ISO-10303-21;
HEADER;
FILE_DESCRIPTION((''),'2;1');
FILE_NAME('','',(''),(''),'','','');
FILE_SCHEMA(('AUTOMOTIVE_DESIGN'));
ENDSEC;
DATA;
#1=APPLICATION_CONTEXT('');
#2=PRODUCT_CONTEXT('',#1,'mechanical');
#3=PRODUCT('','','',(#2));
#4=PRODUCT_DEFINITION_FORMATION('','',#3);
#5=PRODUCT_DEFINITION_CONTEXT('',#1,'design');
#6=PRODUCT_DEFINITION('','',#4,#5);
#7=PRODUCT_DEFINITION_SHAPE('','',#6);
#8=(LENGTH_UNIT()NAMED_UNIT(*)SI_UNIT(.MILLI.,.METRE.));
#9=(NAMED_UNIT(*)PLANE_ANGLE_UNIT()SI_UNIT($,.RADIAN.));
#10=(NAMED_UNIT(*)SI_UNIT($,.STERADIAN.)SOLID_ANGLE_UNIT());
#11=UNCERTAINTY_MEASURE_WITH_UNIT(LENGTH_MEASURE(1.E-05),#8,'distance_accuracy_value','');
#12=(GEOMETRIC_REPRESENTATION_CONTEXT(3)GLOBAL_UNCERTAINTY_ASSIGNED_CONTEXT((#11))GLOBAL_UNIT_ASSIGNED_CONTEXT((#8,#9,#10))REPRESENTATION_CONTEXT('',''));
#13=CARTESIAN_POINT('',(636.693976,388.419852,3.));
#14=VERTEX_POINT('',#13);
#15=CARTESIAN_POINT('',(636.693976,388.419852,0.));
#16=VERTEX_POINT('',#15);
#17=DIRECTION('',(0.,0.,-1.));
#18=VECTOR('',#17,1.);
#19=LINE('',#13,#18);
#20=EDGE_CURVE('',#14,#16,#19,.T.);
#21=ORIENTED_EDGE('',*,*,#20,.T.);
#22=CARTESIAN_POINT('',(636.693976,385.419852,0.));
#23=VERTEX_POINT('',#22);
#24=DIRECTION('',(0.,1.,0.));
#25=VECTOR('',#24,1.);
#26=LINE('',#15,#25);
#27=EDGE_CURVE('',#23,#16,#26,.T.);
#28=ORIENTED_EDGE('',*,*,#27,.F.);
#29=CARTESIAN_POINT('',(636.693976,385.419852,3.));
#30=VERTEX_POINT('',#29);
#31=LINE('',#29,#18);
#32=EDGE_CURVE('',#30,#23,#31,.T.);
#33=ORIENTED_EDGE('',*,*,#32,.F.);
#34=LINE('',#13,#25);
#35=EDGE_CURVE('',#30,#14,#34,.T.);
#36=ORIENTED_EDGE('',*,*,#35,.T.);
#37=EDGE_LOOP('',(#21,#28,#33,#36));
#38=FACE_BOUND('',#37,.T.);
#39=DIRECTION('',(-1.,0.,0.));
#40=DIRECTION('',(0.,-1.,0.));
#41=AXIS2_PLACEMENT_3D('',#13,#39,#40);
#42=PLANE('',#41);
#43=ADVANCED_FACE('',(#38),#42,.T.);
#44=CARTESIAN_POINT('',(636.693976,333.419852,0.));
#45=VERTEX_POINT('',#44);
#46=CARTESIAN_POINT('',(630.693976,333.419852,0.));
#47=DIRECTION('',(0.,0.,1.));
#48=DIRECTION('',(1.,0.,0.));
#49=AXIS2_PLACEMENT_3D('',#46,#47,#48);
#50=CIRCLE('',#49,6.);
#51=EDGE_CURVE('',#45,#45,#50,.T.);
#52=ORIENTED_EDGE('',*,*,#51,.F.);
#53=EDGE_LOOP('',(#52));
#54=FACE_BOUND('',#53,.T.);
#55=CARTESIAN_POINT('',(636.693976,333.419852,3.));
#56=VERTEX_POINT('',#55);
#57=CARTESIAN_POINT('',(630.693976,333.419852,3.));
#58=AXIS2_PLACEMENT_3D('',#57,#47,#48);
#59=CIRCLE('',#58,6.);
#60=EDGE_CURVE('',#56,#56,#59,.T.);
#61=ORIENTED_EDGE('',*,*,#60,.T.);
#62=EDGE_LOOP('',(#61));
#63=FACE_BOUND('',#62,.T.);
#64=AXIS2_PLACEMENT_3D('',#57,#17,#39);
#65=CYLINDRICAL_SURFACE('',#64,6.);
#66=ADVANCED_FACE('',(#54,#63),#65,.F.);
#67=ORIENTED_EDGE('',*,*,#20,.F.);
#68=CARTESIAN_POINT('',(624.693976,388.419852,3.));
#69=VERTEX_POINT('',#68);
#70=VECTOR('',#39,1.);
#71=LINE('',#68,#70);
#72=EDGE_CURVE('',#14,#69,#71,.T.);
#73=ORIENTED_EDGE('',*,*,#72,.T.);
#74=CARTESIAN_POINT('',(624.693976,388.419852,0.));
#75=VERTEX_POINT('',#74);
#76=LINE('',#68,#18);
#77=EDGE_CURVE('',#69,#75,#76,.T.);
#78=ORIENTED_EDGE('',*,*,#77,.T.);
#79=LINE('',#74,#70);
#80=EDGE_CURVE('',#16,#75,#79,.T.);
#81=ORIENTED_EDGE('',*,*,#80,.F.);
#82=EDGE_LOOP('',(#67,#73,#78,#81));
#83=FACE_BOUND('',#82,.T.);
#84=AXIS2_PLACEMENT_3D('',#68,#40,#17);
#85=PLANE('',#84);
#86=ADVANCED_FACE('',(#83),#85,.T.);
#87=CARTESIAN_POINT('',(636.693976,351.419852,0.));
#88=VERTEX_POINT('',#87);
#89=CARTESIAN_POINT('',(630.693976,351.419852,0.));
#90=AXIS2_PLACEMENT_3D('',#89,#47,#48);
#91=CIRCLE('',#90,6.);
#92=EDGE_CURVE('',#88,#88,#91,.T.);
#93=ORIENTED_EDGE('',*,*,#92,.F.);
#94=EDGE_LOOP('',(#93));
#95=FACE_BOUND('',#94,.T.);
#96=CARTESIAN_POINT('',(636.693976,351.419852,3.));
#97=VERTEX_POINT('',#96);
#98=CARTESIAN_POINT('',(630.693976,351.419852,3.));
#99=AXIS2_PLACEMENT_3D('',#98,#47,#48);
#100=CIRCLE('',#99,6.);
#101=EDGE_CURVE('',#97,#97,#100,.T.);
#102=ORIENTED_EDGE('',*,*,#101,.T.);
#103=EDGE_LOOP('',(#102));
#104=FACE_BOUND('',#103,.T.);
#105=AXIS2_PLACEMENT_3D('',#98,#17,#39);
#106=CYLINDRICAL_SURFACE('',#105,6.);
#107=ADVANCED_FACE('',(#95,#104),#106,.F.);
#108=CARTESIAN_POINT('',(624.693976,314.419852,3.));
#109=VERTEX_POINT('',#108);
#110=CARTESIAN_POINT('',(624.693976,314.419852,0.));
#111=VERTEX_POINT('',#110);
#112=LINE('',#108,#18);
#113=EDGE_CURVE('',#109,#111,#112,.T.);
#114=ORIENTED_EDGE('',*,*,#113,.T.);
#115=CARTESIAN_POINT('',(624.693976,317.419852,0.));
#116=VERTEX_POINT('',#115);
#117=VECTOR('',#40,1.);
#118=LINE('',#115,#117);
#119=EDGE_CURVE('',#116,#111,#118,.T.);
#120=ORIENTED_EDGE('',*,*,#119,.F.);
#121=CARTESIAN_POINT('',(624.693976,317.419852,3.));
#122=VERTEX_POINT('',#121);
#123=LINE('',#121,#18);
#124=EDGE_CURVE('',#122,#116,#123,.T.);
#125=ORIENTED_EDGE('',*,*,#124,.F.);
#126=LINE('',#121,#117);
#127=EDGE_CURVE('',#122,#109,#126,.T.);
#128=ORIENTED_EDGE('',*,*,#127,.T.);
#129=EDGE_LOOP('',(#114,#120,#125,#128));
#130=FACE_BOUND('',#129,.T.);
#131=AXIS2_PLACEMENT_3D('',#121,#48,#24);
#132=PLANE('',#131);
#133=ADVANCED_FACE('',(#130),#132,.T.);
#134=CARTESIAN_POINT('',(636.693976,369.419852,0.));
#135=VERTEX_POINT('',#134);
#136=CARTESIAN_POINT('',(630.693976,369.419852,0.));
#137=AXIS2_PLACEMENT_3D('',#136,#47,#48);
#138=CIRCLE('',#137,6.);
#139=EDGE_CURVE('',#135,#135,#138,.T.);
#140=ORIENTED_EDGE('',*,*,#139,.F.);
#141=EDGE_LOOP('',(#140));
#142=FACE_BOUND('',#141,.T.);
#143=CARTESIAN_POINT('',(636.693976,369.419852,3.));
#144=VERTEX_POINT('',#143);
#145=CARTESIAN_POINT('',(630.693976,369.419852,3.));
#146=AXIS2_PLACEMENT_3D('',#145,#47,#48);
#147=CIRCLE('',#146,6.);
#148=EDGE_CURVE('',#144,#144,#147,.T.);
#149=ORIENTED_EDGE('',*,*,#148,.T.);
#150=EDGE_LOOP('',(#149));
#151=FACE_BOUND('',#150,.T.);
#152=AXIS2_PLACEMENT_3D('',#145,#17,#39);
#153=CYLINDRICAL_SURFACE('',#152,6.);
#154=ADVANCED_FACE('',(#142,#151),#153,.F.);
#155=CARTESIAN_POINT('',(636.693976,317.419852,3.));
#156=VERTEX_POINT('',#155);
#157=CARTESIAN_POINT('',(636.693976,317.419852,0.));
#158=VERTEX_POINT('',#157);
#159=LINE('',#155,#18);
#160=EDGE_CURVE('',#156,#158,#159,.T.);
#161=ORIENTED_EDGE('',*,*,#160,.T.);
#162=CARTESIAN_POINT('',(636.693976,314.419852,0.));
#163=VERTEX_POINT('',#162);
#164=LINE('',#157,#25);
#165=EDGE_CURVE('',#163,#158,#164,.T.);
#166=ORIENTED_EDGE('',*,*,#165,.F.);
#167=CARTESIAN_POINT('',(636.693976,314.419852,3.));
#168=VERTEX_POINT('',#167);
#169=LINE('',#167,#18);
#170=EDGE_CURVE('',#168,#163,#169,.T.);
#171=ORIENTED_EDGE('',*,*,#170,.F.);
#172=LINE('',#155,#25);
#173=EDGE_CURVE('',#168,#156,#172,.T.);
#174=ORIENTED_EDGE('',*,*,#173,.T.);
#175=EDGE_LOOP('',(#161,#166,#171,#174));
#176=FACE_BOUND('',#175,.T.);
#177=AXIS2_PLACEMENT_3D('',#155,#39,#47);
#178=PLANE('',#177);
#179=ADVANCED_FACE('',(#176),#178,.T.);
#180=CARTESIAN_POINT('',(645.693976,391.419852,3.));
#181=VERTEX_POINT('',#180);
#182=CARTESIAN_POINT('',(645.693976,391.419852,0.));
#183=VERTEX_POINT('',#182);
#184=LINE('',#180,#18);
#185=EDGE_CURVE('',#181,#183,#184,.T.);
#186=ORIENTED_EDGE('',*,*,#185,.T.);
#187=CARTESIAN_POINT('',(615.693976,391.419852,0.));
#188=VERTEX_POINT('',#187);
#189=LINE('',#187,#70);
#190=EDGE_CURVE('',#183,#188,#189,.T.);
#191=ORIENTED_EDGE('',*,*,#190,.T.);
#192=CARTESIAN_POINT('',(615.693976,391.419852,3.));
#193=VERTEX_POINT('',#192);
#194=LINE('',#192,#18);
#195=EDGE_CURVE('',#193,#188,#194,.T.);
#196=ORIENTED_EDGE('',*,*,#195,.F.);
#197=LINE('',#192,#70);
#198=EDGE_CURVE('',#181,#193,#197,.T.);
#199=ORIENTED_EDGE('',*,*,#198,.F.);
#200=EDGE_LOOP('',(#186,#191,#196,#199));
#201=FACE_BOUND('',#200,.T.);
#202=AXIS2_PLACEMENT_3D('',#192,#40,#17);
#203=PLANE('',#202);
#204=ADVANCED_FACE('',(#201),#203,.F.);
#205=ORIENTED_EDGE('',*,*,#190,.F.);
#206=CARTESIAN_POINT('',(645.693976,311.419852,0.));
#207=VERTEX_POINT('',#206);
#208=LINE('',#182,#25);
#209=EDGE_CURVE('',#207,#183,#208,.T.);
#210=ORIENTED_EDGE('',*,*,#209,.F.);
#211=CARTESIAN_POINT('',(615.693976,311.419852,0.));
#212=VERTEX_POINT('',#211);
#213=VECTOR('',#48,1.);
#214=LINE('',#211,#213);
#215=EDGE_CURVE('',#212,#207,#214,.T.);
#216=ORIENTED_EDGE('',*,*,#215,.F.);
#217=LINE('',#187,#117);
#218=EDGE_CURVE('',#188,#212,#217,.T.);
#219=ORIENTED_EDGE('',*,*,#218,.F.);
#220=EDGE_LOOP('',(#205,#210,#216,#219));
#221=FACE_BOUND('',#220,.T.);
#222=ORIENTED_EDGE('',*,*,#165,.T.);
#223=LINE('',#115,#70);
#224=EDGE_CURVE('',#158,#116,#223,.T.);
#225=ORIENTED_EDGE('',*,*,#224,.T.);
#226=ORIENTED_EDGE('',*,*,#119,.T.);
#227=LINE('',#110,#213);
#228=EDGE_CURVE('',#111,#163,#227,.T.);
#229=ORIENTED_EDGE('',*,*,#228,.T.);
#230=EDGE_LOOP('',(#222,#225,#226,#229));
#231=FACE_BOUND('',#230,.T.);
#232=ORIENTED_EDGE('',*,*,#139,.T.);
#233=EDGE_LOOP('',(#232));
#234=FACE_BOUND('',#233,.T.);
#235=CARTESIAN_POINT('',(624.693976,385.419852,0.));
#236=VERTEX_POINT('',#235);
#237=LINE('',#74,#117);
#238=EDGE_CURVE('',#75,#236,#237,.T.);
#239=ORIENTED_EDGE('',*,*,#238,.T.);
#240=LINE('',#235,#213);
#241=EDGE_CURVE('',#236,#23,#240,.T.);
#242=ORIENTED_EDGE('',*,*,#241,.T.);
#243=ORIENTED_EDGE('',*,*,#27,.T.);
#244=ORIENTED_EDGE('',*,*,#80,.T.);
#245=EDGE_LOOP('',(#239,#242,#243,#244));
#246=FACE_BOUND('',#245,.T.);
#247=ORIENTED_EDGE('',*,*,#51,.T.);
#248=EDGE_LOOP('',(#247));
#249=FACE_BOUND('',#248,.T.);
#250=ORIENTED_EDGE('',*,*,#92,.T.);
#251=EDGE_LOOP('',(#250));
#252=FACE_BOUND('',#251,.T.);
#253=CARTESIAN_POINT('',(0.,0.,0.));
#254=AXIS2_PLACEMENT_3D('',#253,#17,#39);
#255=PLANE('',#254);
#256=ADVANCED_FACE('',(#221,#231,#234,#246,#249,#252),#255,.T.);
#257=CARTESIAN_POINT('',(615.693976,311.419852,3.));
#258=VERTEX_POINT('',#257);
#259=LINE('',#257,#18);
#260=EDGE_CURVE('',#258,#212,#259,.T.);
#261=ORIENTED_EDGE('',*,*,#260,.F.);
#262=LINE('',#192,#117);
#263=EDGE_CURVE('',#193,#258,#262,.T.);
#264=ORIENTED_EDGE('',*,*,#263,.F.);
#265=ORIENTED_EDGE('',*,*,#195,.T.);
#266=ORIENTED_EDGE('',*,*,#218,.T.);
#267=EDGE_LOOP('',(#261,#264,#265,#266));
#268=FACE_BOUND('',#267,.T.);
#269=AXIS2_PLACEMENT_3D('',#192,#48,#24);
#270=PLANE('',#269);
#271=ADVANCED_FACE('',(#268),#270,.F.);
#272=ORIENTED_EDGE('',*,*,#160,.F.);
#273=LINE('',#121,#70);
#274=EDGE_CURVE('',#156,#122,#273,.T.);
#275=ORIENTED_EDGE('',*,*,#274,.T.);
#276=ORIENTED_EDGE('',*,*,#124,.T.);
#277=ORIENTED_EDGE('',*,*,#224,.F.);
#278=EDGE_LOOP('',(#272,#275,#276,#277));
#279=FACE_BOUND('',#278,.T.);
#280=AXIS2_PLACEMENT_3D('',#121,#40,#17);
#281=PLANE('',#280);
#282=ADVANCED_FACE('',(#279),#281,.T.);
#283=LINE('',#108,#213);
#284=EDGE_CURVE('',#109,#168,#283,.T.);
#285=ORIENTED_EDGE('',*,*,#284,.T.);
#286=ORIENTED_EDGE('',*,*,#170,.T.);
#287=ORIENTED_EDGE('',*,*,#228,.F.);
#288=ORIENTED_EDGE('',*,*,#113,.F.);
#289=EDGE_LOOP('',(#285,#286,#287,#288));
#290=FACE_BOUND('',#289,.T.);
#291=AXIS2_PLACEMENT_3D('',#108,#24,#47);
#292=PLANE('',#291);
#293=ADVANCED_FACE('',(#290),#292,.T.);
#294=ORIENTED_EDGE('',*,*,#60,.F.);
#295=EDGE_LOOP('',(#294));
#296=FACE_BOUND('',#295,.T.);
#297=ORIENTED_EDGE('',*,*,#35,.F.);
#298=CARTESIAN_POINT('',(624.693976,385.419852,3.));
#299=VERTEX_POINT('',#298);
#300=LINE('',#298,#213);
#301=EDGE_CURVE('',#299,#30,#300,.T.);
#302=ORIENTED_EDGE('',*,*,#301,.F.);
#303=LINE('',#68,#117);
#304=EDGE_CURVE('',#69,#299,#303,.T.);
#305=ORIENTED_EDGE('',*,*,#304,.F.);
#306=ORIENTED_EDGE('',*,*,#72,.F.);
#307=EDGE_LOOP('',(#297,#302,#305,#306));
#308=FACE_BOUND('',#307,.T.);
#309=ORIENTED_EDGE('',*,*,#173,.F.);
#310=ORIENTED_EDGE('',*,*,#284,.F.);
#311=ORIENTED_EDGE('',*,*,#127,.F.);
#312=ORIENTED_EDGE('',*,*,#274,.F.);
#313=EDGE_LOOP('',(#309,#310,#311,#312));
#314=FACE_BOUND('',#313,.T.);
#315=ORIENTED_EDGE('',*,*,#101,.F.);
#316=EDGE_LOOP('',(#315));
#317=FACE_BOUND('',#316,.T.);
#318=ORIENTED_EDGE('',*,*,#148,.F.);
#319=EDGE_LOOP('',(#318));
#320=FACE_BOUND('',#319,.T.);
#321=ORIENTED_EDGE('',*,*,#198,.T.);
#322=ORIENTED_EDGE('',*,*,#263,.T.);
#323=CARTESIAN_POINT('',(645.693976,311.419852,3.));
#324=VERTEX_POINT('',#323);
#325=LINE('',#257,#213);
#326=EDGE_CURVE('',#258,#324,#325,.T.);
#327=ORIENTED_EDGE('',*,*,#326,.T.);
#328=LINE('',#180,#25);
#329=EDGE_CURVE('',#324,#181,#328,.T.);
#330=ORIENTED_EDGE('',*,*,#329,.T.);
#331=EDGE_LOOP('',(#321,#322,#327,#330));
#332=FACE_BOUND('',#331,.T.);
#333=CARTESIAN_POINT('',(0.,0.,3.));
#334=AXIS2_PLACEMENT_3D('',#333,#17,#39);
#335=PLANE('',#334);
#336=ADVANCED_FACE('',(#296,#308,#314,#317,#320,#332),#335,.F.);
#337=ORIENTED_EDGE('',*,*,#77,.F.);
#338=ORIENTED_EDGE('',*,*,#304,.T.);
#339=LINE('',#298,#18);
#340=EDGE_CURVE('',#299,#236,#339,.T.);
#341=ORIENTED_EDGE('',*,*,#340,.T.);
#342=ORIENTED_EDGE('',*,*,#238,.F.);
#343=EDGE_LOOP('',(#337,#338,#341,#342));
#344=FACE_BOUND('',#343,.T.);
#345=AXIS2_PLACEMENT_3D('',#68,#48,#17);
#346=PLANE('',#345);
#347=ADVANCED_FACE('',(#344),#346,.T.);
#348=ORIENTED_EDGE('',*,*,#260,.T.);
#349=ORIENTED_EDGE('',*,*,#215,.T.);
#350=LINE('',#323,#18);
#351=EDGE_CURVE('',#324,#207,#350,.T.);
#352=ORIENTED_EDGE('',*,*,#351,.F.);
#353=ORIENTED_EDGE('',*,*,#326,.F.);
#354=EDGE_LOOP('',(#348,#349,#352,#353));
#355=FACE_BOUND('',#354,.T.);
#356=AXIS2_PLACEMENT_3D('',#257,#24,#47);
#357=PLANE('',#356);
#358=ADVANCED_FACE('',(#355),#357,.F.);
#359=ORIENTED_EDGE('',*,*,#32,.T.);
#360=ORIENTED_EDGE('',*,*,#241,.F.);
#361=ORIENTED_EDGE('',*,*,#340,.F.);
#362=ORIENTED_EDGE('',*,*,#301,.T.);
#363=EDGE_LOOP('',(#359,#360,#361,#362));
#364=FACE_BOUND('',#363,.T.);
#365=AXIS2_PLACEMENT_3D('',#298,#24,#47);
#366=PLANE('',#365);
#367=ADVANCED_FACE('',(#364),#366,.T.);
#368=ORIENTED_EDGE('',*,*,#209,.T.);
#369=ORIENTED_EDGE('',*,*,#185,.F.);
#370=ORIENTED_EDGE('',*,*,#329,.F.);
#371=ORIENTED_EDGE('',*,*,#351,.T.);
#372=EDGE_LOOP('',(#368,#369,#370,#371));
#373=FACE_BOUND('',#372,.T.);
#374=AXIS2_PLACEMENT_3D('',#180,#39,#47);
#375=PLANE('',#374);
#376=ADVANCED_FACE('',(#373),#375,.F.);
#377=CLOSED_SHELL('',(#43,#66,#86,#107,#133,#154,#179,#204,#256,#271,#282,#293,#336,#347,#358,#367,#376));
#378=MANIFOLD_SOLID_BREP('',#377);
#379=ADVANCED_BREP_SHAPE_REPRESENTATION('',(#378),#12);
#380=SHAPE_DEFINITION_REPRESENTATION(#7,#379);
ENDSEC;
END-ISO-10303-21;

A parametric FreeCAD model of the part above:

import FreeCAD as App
import Part
import Sketcher

doc = App.newDocument("Part")
body = doc.addObject("PartDesign::Body", "Body")

# Sketch on XY plane
sketch1 = body.newObject("Sketcher::SketchObject", "Sketch")
sketch1.AttachmentSupport = (doc.getObject("XY_Plane"), [""])
sketch1.MapMode = "FlatFace"
sketch1.addGeometry([
    Part.LineSegment(App.Vector(615.7, 391.4, 0), App.Vector(615.7, 311.4, 0)),  # 0
    Part.LineSegment(App.Vector(615.7, 311.4, 0), App.Vector(645.7, 311.4, 0)),  # 1
    Part.LineSegment(App.Vector(645.7, 311.4, 0), App.Vector(645.7, 391.4, 0)),  # 2
    Part.LineSegment(App.Vector(645.7, 391.4, 0), App.Vector(615.7, 391.4, 0)),  # 3
    Part.LineSegment(App.Vector(636.7, 314.4, 0), App.Vector(624.7, 314.4, 0)),  # 4
    Part.LineSegment(App.Vector(624.7, 314.4, 0), App.Vector(624.7, 317.4, 0)),  # 5
    Part.LineSegment(App.Vector(624.7, 317.4, 0), App.Vector(636.7, 317.4, 0)),  # 6
    Part.LineSegment(App.Vector(636.7, 317.4, 0), App.Vector(636.7, 314.4, 0)),  # 7
    Part.Circle(App.Vector(630.7, 333.4, 0), App.Vector(0, 0, 1), 6),  # 8
    Part.Circle(App.Vector(630.7, 351.4, 0), App.Vector(0, 0, 1), 6),  # 9
    Part.Circle(App.Vector(630.7, 369.4, 0), App.Vector(0, 0, 1), 6),  # 10
    Part.LineSegment(App.Vector(636.7, 385.4, 0), App.Vector(624.7, 385.4, 0)),  # 11
    Part.LineSegment(App.Vector(624.7, 385.4, 0), App.Vector(624.7, 388.4, 0)),  # 12
    Part.LineSegment(App.Vector(624.7, 388.4, 0), App.Vector(636.7, 388.4, 0)),  # 13
    Part.LineSegment(App.Vector(636.7, 388.4, 0), App.Vector(636.7, 385.4, 0)),  # 14
], False)
sketch1.addConstraint([
    Sketcher.Constraint("Coincident", 0, 2, 1, 1),
    Sketcher.Constraint("Coincident", 1, 2, 2, 1),
    Sketcher.Constraint("Coincident", 2, 2, 3, 1),
    Sketcher.Constraint("Coincident", 3, 2, 0, 1),
    Sketcher.Constraint("Coincident", 4, 2, 5, 1),
    Sketcher.Constraint("Coincident", 5, 2, 6, 1),
    Sketcher.Constraint("Coincident", 6, 2, 7, 1),
    Sketcher.Constraint("Coincident", 7, 2, 4, 1),
    Sketcher.Constraint("Coincident", 11, 2, 12, 1),
    Sketcher.Constraint("Coincident", 12, 2, 13, 1),
    Sketcher.Constraint("Coincident", 13, 2, 14, 1),
    Sketcher.Constraint("Coincident", 14, 2, 11, 1),
    Sketcher.Constraint("Vertical", 0),
    Sketcher.Constraint("Horizontal", 1),
    Sketcher.Constraint("Vertical", 2),
    Sketcher.Constraint("Horizontal", 3),
    Sketcher.Constraint("Horizontal", 4),
    Sketcher.Constraint("Vertical", 5),
    Sketcher.Constraint("Horizontal", 6),
    Sketcher.Constraint("Vertical", 7),
    Sketcher.Constraint("Horizontal", 11),
    Sketcher.Constraint("Vertical", 12),
    Sketcher.Constraint("Horizontal", 13),
    Sketcher.Constraint("Vertical", 14),
    Sketcher.Constraint("Equal", 8, 9),
    Sketcher.Constraint("Equal", 9, 10),
    Sketcher.Constraint("Vertical", 8, 3, 9, 3),
    Sketcher.Constraint("Vertical", 9, 3, 10, 3),
    Sketcher.Constraint("Vertical", 5, 2, 11, 2),
    Sketcher.Constraint("Vertical", 7, 2, 13, 2),
    Sketcher.Constraint("Equal", 7, 12),
    Sketcher.Constraint("Diameter", 8, 12.0),
    Sketcher.Constraint("DistanceX", 1, 1, 1, 2, 30.0),
    Sketcher.Constraint("DistanceX", 4, 2, 4, 1, 12.0),
    Sketcher.Constraint("DistanceY", 0, 2, 0, 1, 80.0),
    Sketcher.Constraint("DistanceY", 5, 1, 5, 2, 3.0),
    Sketcher.Constraint("DistanceY", 8, 3, 9, 3, 18.0),
    Sketcher.Constraint("DistanceY", 9, 3, 10, 3, 18.0),
    Sketcher.Constraint("DistanceX", 0, 2, 8, 3, 15.0),
    Sketcher.Constraint("DistanceY", 0, 2, 8, 3, 22.0),
    Sketcher.Constraint("DistanceX", 0, 2, 4, 2, 9.0),
    Sketcher.Constraint("DistanceY", 0, 2, 4, 2, 3.0),
    Sketcher.Constraint("DistanceY", 11, 2, 3, 2, 6.0),
    Sketcher.Constraint("DistanceY", -1, 1, 8, 3, 333.419852),
    Sketcher.Constraint("DistanceX", -1, 1, 8, 3, 630.693976),
])
pad1 = body.newObject("PartDesign::Pad", "Pad")
pad1.Profile = sketch1
pad1.Length = 3

doc.recompute()
